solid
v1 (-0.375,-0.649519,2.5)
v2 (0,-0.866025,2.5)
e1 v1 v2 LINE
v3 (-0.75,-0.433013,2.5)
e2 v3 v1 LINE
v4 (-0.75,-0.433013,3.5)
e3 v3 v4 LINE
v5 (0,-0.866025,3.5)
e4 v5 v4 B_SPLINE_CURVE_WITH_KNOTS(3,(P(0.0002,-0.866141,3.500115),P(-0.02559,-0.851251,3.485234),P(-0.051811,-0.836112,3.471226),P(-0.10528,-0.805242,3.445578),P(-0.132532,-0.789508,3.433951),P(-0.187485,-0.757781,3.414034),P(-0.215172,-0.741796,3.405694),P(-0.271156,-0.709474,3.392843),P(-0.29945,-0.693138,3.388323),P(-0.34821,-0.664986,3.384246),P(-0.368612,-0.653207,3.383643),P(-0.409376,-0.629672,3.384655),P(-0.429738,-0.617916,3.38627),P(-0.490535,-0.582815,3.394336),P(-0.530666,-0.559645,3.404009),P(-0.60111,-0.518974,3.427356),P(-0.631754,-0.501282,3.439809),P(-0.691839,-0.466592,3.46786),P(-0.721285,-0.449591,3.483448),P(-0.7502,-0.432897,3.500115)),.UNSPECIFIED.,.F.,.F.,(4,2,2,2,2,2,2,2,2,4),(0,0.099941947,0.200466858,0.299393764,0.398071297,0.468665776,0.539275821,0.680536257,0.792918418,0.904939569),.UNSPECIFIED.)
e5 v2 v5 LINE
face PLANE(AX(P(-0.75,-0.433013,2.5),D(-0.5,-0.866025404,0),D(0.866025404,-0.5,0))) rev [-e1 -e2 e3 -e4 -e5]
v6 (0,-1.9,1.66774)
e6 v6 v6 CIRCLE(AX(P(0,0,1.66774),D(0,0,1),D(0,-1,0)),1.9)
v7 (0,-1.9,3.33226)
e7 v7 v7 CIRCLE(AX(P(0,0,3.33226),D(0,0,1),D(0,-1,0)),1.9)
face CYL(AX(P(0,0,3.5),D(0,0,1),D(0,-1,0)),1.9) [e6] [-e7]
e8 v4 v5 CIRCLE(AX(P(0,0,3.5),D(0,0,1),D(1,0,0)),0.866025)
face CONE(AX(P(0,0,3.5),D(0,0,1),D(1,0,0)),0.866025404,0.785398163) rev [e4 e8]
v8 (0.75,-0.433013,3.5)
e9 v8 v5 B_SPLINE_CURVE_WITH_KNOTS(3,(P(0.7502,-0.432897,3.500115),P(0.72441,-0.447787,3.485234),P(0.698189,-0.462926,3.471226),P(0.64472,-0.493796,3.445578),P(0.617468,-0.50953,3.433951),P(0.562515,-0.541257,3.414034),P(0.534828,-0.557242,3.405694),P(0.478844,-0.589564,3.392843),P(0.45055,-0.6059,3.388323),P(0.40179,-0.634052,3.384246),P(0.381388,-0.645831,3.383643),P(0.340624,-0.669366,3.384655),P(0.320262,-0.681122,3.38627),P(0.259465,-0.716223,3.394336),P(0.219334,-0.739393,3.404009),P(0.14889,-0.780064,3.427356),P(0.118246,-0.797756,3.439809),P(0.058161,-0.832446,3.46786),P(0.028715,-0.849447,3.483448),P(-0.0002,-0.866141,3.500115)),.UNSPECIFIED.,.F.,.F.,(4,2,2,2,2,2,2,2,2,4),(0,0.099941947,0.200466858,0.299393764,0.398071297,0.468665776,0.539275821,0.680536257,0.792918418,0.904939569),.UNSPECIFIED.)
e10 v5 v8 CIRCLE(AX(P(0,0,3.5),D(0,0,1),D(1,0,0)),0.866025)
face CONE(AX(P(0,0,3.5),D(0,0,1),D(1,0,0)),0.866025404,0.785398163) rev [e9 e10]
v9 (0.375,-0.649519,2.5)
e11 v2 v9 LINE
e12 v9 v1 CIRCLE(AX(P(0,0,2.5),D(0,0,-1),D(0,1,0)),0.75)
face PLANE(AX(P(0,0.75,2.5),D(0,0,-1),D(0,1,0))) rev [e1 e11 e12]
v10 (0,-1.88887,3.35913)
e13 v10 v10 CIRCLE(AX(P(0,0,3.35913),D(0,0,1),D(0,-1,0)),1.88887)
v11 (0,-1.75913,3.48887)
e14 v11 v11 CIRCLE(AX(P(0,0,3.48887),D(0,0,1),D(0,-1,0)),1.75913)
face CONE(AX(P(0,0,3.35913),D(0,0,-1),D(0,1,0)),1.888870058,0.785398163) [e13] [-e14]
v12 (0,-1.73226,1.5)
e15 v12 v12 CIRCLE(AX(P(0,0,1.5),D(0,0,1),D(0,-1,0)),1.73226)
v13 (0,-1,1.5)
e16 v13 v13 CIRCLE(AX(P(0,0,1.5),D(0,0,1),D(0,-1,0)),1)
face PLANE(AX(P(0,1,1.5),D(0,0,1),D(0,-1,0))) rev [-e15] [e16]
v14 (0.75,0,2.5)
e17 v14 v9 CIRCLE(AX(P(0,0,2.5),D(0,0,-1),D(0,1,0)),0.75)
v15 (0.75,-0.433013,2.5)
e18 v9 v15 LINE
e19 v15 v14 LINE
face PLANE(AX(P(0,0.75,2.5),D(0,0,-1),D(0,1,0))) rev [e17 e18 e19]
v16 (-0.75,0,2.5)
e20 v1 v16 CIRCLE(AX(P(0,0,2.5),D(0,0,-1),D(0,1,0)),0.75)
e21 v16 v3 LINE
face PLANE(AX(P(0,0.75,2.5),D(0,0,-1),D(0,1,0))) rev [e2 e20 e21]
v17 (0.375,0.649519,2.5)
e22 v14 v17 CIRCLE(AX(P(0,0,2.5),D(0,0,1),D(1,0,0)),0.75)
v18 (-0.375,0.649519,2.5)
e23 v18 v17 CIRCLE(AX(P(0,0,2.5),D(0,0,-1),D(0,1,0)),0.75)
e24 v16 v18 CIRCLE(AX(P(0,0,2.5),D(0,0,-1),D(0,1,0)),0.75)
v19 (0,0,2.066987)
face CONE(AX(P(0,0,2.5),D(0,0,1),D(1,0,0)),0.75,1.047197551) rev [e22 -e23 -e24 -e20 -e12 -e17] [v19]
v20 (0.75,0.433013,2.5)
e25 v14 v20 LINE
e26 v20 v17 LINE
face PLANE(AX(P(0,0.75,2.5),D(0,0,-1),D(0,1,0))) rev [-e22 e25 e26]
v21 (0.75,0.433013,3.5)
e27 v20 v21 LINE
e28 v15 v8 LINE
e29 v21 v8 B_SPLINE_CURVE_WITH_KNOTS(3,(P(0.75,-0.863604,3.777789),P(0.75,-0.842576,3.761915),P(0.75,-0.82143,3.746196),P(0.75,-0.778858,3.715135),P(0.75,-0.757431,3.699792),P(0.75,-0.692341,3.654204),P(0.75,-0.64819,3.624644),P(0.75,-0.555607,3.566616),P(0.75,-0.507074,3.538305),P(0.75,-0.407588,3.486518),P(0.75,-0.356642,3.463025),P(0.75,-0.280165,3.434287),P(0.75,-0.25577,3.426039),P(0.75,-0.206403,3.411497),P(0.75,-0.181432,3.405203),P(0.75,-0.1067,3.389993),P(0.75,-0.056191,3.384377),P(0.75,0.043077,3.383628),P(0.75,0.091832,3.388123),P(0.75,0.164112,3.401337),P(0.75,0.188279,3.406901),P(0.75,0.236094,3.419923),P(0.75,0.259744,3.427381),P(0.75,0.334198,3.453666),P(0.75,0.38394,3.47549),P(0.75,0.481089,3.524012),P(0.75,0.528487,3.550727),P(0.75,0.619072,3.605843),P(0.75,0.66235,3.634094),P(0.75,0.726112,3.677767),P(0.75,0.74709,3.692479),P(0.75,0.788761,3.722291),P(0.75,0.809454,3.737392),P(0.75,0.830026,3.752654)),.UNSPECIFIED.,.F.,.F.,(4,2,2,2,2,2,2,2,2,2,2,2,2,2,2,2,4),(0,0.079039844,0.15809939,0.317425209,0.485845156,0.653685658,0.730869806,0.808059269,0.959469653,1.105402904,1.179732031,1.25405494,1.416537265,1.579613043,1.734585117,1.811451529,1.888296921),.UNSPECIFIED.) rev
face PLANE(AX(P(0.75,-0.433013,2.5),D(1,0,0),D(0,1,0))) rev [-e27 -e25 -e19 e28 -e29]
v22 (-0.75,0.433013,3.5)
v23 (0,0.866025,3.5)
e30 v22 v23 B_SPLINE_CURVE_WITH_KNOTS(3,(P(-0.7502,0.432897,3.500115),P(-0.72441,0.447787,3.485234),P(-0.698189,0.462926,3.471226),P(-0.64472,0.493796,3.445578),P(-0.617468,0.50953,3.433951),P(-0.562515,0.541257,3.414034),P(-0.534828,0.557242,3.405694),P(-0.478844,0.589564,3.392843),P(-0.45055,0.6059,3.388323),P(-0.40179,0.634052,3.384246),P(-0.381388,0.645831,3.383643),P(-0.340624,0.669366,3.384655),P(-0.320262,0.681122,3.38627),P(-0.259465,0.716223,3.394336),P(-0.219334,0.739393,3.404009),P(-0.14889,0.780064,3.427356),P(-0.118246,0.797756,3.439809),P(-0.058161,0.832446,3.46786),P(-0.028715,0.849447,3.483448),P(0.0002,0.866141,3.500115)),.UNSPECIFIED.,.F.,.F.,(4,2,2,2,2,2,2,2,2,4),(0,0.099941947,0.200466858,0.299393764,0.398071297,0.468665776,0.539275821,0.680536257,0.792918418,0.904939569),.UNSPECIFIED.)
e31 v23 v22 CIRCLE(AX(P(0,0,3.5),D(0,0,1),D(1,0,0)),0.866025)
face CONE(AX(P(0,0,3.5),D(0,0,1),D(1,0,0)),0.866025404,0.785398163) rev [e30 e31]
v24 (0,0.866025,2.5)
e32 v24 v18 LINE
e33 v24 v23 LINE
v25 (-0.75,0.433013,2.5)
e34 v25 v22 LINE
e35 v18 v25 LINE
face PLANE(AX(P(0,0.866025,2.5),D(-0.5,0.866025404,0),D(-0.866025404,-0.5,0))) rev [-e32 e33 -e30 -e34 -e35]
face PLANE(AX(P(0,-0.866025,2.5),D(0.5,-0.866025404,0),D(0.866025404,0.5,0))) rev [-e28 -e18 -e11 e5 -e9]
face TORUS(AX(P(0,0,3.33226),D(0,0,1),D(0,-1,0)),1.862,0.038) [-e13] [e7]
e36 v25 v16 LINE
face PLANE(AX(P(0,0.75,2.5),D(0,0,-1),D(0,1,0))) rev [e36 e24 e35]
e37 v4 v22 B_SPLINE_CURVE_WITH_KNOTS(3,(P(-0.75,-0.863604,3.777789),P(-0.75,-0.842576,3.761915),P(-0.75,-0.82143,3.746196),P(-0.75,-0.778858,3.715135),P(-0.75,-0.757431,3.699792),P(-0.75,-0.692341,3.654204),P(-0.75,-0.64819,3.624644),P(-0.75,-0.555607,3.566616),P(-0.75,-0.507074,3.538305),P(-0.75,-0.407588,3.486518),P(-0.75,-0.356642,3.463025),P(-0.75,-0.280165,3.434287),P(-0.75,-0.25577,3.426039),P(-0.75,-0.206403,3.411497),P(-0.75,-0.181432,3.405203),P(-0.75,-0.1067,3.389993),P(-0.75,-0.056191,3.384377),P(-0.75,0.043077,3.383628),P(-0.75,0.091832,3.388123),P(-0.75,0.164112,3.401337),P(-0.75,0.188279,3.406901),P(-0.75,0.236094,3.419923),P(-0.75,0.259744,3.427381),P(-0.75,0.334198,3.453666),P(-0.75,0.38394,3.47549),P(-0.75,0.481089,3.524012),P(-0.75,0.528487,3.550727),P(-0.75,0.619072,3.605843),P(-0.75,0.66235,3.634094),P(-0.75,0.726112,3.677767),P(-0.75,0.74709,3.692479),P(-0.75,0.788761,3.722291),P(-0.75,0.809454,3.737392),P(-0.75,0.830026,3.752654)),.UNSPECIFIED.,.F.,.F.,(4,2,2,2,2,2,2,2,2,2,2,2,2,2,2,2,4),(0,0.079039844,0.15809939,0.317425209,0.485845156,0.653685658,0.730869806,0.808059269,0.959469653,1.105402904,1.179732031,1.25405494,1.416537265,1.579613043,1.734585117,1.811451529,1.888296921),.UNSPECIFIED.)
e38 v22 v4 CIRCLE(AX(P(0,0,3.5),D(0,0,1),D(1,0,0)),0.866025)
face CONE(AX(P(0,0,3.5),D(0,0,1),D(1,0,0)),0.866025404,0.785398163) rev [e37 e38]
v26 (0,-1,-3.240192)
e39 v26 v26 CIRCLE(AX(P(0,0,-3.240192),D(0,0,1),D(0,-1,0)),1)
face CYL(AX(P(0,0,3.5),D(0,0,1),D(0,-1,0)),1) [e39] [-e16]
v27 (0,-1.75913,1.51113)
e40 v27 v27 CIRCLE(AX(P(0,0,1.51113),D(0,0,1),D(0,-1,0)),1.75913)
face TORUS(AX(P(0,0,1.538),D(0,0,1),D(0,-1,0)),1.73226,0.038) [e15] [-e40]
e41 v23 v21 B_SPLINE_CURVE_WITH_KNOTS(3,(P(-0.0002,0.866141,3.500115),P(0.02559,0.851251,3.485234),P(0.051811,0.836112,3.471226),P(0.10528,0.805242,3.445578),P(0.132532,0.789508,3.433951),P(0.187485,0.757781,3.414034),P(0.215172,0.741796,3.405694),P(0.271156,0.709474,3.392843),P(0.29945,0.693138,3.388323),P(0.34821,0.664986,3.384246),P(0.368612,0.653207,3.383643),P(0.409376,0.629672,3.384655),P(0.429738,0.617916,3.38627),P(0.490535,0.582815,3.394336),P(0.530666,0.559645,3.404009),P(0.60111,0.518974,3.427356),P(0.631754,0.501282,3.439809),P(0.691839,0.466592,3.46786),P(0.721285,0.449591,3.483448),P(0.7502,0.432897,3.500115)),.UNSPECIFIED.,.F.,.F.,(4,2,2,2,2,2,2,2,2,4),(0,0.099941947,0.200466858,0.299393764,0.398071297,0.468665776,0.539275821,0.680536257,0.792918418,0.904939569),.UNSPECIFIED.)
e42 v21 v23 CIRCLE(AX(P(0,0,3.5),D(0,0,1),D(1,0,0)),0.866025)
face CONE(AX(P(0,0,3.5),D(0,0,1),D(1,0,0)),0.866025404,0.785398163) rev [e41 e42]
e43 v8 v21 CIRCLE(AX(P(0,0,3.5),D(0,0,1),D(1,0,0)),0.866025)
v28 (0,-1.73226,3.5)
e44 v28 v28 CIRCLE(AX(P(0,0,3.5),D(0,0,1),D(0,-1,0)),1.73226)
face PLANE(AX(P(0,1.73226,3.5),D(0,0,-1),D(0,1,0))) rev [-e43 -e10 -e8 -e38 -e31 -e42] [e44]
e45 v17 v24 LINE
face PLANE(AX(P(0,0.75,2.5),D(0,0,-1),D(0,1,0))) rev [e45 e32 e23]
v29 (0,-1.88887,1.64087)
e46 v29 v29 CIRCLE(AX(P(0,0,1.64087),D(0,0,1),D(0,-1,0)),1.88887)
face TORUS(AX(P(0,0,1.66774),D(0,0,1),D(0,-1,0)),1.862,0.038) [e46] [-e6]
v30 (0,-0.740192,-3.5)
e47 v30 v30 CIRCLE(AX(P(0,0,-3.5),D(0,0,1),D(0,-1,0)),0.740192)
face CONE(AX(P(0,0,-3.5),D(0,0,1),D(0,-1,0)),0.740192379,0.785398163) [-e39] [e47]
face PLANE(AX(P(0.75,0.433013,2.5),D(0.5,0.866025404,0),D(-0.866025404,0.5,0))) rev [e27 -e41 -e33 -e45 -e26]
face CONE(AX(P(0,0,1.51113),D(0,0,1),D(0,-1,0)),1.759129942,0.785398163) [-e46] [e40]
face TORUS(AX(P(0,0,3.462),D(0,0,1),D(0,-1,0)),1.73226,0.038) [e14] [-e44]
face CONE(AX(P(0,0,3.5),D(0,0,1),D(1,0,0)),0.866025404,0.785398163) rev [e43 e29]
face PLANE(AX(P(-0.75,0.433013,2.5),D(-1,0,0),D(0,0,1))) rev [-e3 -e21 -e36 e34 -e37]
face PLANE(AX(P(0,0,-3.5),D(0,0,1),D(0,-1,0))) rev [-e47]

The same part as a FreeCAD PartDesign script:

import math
import FreeCAD as App
import Part
import Sketcher
Q = App.Units.Quantity


def add_polygon(sketch, points):
    """Adds a closed chain of lines whose ends are joined by coincident constraints."""
    first, n = sketch.GeometryCount, len(points)
    for a, b in zip(points, points[1:] + points[:1]):
        sketch.addGeometry(Part.LineSegment(App.Vector(*a, 0), App.Vector(*b, 0)), False)
    for i in range(n):
        sketch.addConstraint(Sketcher.Constraint("Coincident", first + i, 2, first + (i + 1) % n, 1))

doc = App.newDocument("Part")
body = doc.addObject("PartDesign::Body", "Body")

# Sketch on YZ plane
sketch1 = body.newObject("Sketcher::SketchObject", "Sketch")
sketch1.AttachmentSupport = (doc.getObject("YZ_Plane"), [""])
sketch1.MapMode = "FlatFace"
sketch1.addGeometry(Part.LineSegment(App.Vector(1.732, 3.5, 0), App.Vector(0.75, 3.5, 0)), False)
sketch1.addGeometry(Part.LineSegment(App.Vector(0.75, 3.5, 0), App.Vector(0.75, 2.5, 0)), False)
sketch1.addGeometry(Part.LineSegment(App.Vector(0.75, 2.5, 0), App.Vector(0, 2.5, 0)), False)
sketch1.addGeometry(Part.LineSegment(App.Vector(0, 2.5, 0), App.Vector(0, -3.5, 0)), False)
sketch1.addGeometry(Part.LineSegment(App.Vector(0, -3.5, 0), App.Vector(0.74, -3.5, 0)), False)
sketch1.addGeometry(Part.LineSegment(App.Vector(0.74, -3.5, 0), App.Vector(1, -3.24, 0)), False)
sketch1.addGeometry(Part.LineSegment(App.Vector(1, -3.24, 0), App.Vector(1, 1.5, 0)), False)
sketch1.addGeometry(Part.LineSegment(App.Vector(1, 1.5, 0), App.Vector(1.732, 1.5, 0)), False)
sketch1.addGeometry(Part.ArcOfCircle(Part.Circle(App.Vector(1.732, 1.538, 0), App.Vector(0, 0, 1), 0.038), math.radians(-90), math.radians(-45)), False)
sketch1.addGeometry(Part.LineSegment(App.Vector(1.759, 1.511, 0), App.Vector(1.889, 1.641, 0)), False)
sketch1.addGeometry(Part.ArcOfCircle(Part.Circle(App.Vector(1.862, 1.668, 0), App.Vector(0, 0, 1), 0.038), math.radians(-45), math.radians(0)), False)
sketch1.addGeometry(Part.LineSegment(App.Vector(1.9, 1.668, 0), App.Vector(1.9, 3.332, 0)), False)
sketch1.addGeometry(Part.ArcOfCircle(Part.Circle(App.Vector(1.862, 3.332, 0), App.Vector(0, 0, 1), 0.038), math.radians(0), math.radians(45)), False)
sketch1.addGeometry(Part.LineSegment(App.Vector(1.889, 3.359, 0), App.Vector(1.759, 3.489, 0)), False)
sketch1.addGeometry(Part.ArcOfCircle(Part.Circle(App.Vector(1.732, 3.462, 0), App.Vector(0, 0, 1), 0.038), math.radians(45), math.radians(90)), False)
sketch1.addConstraint(Sketcher.Constraint("Coincident", 0, 2, 1, 1))
sketch1.addConstraint(Sketcher.Constraint("Coincident", 1, 2, 2, 1))
sketch1.addConstraint(Sketcher.Constraint("Coincident", 2, 2, 3, 1))
sketch1.addConstraint(Sketcher.Constraint("Coincident", 3, 2, 4, 1))
sketch1.addConstraint(Sketcher.Constraint("Coincident", 4, 2, 5, 1))
sketch1.addConstraint(Sketcher.Constraint("Coincident", 5, 2, 6, 1))
sketch1.addConstraint(Sketcher.Constraint("Coincident", 6, 2, 7, 1))
sketch1.addConstraint(Sketcher.Constraint("Tangent", 7, 2, 8, 1))
sketch1.addConstraint(Sketcher.Constraint("Tangent", 8, 2, 9, 1))
sketch1.addConstraint(Sketcher.Constraint("Tangent", 9, 2, 10, 1))
sketch1.addConstraint(Sketcher.Constraint("Tangent", 10, 2, 11, 1))
sketch1.addConstraint(Sketcher.Constraint("Tangent", 11, 2, 12, 1))
sketch1.addConstraint(Sketcher.Constraint("Tangent", 12, 2, 13, 1))
sketch1.addConstraint(Sketcher.Constraint("Tangent", 13, 2, 14, 1))
sketch1.addConstraint(Sketcher.Constraint("Tangent", 14, 2, 0, 1))
sketch1.addConstraint(Sketcher.Constraint("Horizontal", 0))
sketch1.addConstraint(Sketcher.Constraint("Vertical", 1))
sketch1.addConstraint(Sketcher.Constraint("Horizontal", 2))
sketch1.addConstraint(Sketcher.Constraint("Vertical", 3))
sketch1.addConstraint(Sketcher.Constraint("Horizontal", 4))
sketch1.addConstraint(Sketcher.Constraint("Vertical", 6))
sketch1.addConstraint(Sketcher.Constraint("Horizontal", 7))
sketch1.addConstraint(Sketcher.Constraint("Vertical", 11))
sketch1.addConstraint(Sketcher.Constraint("Equal", 8, 10))
sketch1.addConstraint(Sketcher.Constraint("Equal", 10, 12))
sketch1.addConstraint(Sketcher.Constraint("Equal", 12, 14))
sketch1.addConstraint(Sketcher.Constraint("PointOnObject", 2, 2, -2))
sketch1.addConstraint(Sketcher.Constraint("Parallel", 5, 9))
sketch1.addConstraint(Sketcher.Constraint("Perpendicular", 9, 13))
sketch1.addConstraint(Sketcher.Constraint("Vertical", 8, 3, 14, 3))
sketch1.addConstraint(Sketcher.Constraint("Vertical", 9, 2, 12, 2))
sketch1.addConstraint(Sketcher.Constraint("DistanceY", 1, 2, 1, 1, Q("1 mm")))
sketch1.addConstraint(Sketcher.Constraint("DistanceY", 3, 2, 3, 1, Q("6 mm")))
sketch1.addConstraint(Sketcher.Constraint("DistanceX", -1, 1, 5, 2, Q("1 mm")))
sketch1.addConstraint(Sketcher.Constraint("Radius", 8, Q("0.038 mm")))
sketch1.addConstraint(Sketcher.Constraint("DistanceY", 6, 2, 1, 2, Q("1 mm")))
sketch1.addConstraint(Sketcher.Constraint("DistanceX", 2, 2, 2, 1, Q("0.75 mm")))
sketch1.addConstraint(Sketcher.Constraint("DistanceY", -1, 1, 0, 2, Q("3.5 mm")))
sketch1.addConstraint(Sketcher.Constraint("DistanceX", -1, 1, 10, 2, Q("1.9 mm")))
sketch1.addConstraint(Sketcher.Constraint("DistanceX", 0, 2, 0, 1, Q("0.98226 mm")))
sketch1.addConstraint(Sketcher.Constraint("DistanceX", 4, 1, 4, 2, Q("0.740192 mm")))
revolution = body.newObject("PartDesign::Revolution", "Revolution")
revolution.Profile = sketch1
revolution.ReferenceAxis = (sketch1, ["V_Axis"])
revolution.Angle = 360

# Sketch on XY plane
sketch2 = body.newObject("Sketcher::SketchObject", "Sketch001")
sketch2.AttachmentSupport = (doc.getObject("XY_Plane"), [""])
sketch2.MapMode = "FlatFace"
sketch2.AttachmentOffset = App.Placement(App.Vector(0, 0, 3.5), App.Rotation())
add_polygon(sketch2, [(0, 0.9), (-0.8, 0.4), (-0.8, -0.4), (0, -0.9), (0.8, -0.4), (0.8, 0.4)])  # lines 0-5
sketch2.addConstraint(Sketcher.Constraint("Vertical", 1))
sketch2.addConstraint(Sketcher.Constraint("Vertical", 4))
sketch2.addConstraint(Sketcher.Constraint("Symmetric", 0, 2, 3, 2, -1, 1))
sketch2.addConstraint(Sketcher.Constraint("Symmetric", 2, 2, 5, 2, -1, 1))
sketch2.addConstraint(Sketcher.Constraint("PointOnObject", 2, 2, -2))
sketch2.addConstraint(Sketcher.Constraint("Parallel", 2, 5))
sketch2.addConstraint(Sketcher.Constraint("Horizontal", 1, 2, 3, 2))
sketch2.addConstraint(Sketcher.Constraint("Angle", 0, Q("-150 deg")))
sketch2.addConstraint(Sketcher.Constraint("DistanceX", 1, 2, 3, 2, Q("1.5 mm")))
sketch2.addConstraint(Sketcher.Constraint("DistanceY", 1, 2, 1, 1, Q("0.866025 mm")))
pocket1 = body.newObject("PartDesign::Pocket", "Pocket")
pocket1.Profile = sketch2
pocket1.Length = 1

# Sketch on YZ plane
sketch3 = body.newObject("Sketcher::SketchObject", "Sketch002")
sketch3.AttachmentSupport = (doc.getObject("YZ_Plane"), [""])
sketch3.MapMode = "FlatFace"
add_polygon(sketch3, [(0, 3.5), (-0.9, 3.5), (0, 2.6)])  # lines 0-2
sketch3.addConstraint(Sketcher.Constraint("Horizontal", 0))
sketch3.addConstraint(Sketcher.Constraint("Vertical", 2))
sketch3.addConstraint(Sketcher.Constraint("PointOnObject", 1, 2, -2))
sketch3.addConstraint(Sketcher.Constraint("Equal", 0, 2))
sketch3.addConstraint(Sketcher.Constraint("DistanceY", -1, 1, 0, 2, Q("3.5 mm")))
sketch3.addConstraint(Sketcher.Constraint("DistanceX", 0, 2, 0, 1, Q("0.866025 mm")))
groove = body.newObject("PartDesign::Groove", "Groove")
groove.Profile = sketch3
groove.ReferenceAxis = (sketch3, ["V_Axis"])
groove.Angle = 360

# Sketch on YZ plane
sketch4 = body.newObject("Sketcher::SketchObject", "Sketch003")
sketch4.AttachmentSupport = (doc.getObject("YZ_Plane"), [""])
sketch4.MapMode = "FlatFace"
add_polygon(sketch4, [(0, 2.5), (-0.75, 2.5), (0, 2.07)])  # lines 0-2
sketch4.addConstraint(Sketcher.Constraint("Horizontal", 0))
sketch4.addConstraint(Sketcher.Constraint("Vertical", 2))
sketch4.addConstraint(Sketcher.Constraint("PointOnObject", 1, 2, -2))
sketch4.addConstraint(Sketcher.Constraint("Angle", 1, Q("-30 deg")))
sketch4.addConstraint(Sketcher.Constraint("DistanceX", 0, 2, 0, 1, Q("0.75 mm")))
sketch4.addConstraint(Sketcher.Constraint("DistanceY", -1, 1, 0, 2, Q("2.5 mm")))
groove2 = body.newObject("PartDesign::Groove", "Groove001")
groove2.Profile = sketch4
groove2.ReferenceAxis = (sketch4, ["V_Axis"])
groove2.Angle = 360

doc.recompute()
